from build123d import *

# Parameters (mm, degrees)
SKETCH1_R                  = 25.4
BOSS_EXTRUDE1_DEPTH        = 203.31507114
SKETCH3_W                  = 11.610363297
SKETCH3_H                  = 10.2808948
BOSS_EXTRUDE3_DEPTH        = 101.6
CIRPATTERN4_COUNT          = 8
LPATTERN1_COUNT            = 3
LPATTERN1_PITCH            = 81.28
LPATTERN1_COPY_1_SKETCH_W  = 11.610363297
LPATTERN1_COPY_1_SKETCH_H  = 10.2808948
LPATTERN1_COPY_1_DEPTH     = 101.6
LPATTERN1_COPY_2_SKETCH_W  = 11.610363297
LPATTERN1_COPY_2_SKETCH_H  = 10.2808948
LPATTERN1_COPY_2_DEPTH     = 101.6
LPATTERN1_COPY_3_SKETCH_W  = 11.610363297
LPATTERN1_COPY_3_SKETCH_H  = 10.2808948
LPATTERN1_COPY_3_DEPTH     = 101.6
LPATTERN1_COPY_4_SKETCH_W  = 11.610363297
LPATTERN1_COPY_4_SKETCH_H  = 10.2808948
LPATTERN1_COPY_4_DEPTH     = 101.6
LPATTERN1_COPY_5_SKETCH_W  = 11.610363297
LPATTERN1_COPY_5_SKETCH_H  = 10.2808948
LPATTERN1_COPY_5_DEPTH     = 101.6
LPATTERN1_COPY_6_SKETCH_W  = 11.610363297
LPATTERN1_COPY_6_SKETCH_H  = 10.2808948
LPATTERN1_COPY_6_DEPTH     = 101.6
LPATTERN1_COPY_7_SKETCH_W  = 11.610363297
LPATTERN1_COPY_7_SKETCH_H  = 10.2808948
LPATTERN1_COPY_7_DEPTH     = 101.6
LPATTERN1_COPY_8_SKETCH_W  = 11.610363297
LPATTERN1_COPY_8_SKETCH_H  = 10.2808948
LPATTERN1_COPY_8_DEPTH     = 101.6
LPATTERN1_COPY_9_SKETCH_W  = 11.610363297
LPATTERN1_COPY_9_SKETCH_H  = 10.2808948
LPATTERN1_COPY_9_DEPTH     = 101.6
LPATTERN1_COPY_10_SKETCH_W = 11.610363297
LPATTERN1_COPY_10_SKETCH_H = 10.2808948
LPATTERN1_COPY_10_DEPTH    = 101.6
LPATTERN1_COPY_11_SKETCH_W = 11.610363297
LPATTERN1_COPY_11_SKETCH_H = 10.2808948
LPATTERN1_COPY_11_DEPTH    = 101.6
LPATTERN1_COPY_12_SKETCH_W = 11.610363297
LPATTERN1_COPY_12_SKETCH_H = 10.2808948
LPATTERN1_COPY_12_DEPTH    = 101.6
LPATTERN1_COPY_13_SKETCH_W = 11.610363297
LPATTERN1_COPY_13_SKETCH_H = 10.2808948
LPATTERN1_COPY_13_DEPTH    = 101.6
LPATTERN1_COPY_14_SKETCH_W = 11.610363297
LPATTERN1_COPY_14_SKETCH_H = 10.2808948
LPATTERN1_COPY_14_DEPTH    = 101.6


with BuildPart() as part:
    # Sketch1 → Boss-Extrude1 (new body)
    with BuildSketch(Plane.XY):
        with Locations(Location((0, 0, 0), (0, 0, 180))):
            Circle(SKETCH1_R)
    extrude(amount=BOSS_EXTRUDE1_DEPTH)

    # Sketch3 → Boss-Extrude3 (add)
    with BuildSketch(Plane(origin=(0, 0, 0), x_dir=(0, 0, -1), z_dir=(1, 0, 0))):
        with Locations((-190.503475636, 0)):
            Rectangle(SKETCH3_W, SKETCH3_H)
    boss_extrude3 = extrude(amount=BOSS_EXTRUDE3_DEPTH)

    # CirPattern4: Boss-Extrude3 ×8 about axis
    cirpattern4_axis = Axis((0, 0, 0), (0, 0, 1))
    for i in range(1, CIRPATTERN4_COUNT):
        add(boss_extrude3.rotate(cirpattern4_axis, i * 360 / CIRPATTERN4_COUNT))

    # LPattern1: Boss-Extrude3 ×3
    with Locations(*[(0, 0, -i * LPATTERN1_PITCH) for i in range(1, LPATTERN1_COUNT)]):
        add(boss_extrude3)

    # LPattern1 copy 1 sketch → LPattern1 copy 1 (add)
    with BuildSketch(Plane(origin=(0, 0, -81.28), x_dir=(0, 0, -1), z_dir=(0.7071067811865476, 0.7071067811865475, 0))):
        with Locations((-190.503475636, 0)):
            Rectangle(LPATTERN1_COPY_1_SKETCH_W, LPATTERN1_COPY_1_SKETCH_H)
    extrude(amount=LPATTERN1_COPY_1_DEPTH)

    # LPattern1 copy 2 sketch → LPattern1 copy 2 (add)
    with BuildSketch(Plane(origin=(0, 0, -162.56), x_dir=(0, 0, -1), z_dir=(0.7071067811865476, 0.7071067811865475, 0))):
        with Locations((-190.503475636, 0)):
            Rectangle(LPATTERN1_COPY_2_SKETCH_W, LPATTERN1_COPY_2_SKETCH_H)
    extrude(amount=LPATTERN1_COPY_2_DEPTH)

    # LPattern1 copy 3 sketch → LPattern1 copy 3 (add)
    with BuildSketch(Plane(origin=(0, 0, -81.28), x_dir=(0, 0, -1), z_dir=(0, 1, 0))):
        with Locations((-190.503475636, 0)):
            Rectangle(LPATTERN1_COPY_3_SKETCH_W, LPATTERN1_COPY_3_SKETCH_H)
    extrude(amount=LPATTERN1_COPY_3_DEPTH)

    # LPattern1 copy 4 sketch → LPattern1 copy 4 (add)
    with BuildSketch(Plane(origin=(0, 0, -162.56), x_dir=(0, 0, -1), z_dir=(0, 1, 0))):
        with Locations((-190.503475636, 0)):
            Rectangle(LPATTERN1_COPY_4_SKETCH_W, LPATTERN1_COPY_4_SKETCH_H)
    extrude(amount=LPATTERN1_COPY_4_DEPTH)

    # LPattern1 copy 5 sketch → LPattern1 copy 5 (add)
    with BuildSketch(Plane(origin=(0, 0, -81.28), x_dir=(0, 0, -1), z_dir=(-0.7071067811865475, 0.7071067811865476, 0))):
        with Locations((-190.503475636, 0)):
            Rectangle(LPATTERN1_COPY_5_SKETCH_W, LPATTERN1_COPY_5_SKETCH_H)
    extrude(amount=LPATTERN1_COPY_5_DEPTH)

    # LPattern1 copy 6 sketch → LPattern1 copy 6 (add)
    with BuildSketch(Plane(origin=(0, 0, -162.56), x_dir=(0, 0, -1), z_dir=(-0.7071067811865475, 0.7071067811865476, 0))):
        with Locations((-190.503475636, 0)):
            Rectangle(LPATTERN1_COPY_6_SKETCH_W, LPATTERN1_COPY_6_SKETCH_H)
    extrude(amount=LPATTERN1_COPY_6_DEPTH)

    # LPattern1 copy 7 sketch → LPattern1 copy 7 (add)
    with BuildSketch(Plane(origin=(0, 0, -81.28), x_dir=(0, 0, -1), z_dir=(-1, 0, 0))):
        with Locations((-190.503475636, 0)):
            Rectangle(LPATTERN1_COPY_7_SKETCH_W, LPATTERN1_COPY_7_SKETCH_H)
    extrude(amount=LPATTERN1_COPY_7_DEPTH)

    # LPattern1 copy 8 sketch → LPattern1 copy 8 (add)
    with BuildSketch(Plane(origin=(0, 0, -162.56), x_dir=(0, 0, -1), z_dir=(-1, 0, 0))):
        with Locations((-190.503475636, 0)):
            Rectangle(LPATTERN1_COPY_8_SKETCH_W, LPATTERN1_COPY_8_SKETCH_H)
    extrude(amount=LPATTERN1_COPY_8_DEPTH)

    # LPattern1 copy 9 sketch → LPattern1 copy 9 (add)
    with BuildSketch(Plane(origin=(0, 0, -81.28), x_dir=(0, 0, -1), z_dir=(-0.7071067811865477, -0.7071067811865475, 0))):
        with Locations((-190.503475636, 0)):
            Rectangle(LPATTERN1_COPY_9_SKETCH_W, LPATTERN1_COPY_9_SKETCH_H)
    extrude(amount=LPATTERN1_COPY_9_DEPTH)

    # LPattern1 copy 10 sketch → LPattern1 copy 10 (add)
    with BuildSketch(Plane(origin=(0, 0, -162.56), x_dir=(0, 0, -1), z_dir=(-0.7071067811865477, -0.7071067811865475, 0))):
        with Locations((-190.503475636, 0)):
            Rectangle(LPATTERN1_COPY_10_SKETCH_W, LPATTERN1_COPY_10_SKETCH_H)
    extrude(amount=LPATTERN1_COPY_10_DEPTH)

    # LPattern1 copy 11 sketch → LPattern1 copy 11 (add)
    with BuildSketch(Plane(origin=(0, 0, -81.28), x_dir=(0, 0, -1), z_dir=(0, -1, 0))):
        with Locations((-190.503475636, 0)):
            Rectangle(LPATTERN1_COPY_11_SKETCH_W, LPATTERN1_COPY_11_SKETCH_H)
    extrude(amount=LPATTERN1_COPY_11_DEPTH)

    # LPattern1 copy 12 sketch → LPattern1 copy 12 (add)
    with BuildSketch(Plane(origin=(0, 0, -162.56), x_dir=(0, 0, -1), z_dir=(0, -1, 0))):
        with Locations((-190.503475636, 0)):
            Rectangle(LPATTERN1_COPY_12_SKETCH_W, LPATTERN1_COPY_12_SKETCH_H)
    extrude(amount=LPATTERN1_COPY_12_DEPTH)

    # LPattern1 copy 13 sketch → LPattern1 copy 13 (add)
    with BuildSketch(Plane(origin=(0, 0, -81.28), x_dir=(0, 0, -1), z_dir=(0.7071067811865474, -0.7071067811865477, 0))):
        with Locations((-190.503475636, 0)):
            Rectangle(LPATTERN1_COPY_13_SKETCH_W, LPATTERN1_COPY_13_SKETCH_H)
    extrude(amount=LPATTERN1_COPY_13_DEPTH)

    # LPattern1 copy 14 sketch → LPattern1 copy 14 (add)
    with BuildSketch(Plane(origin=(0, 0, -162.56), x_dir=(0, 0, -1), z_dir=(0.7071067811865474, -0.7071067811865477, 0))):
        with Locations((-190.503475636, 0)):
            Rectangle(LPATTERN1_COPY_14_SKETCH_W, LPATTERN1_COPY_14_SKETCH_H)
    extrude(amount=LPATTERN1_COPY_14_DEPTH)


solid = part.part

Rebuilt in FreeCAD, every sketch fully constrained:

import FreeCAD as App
import Part
import Sketcher
from FreeCAD import Vector
Q = App.Units.Quantity


def add_polygon(sketch, points):
    """Adds a closed chain of lines whose ends are joined by coincident constraints."""
    first, n = sketch.GeometryCount, len(points)
    for a, b in zip(points, points[1:] + points[:1]):
        sketch.addGeometry(Part.LineSegment(App.Vector(*a, 0), App.Vector(*b, 0)), False)
    for i in range(n):
        sketch.addConstraint(Sketcher.Constraint("Coincident", first + i, 2, first + (i + 1) % n, 1))

doc = App.newDocument("Part")
body = doc.addObject("PartDesign::Body", "Body")

# Sketch on XY plane
sketch1 = doc.addObject("Sketcher::SketchObject", "Sketch")
body.addObject(sketch1)
sketch1.AttachmentSupport = (doc.XY_Plane, [""])
sketch1.MapMode = "FlatFace"
sketch1.addGeometry(Part.Circle(Vector(0, 0, 0), Vector(0, 0, 1), 25.4), False)
sketch1.addConstraint([
    Sketcher.Constraint("Coincident", 0, 3, -1, 1),
    Sketcher.Constraint("Diameter", 0, Q("2 in")),
])
pad1 = doc.addObject("PartDesign::Pad", "Pad")
body.addObject(pad1)
pad1.Profile = sketch1
pad1.Length = 203.315071

# Sketch on YZ plane
sketch2 = doc.addObject("Sketcher::SketchObject", "Sketch001")
body.addObject(sketch2)
sketch2.AttachmentSupport = (doc.YZ_Plane, [""])
sketch2.MapMode = "FlatFace"
add_polygon(sketch2, [(5.140447, 196.308657), (-5.140447, 196.308657), (-5.140447, 184.698294), (5.140447, 184.698294)])  # lines 0-3
sketch2.addConstraint([
    Sketcher.Constraint("Horizontal", 0),
    Sketcher.Constraint("Vertical", 1),
    Sketcher.Constraint("Horizontal", 2),
    Sketcher.Constraint("Vertical", 3),
    Sketcher.Constraint("DistanceX", 0, 2, 0, 1, 10.280895),
    Sketcher.Constraint("DistanceY", 1, 2, 1, 1, 11.610363),
    Sketcher.Constraint("DistanceX", 0, 2, -1, 1, 5.140447),
    Sketcher.Constraint("DistanceY", -1, 1, 0, 2, 196.308657),
])
pad2 = doc.addObject("PartDesign::Pad", "Pad001")
body.addObject(pad2)
pad2.Profile = sketch2
pad2.Length = Q("4 in")
doc.recompute()

polarpattern = doc.addObject("PartDesign::PolarPattern", "PolarPattern")
body.addObject(polarpattern)
polarpattern.Originals = [pad2]
polarpattern.Axis = (doc.Z_Axis, [""])
polarpattern.Angle = 360
polarpattern.Occurrences = 8
body.Tip = polarpattern
doc.recompute()

linearpattern = doc.addObject("PartDesign::LinearPattern", "LinearPattern")
body.addObject(linearpattern)
linearpattern.Originals = [pad2]
linearpattern.Direction = (doc.Z_Axis, [""])
linearpattern.Mode = "offset"
linearpattern.Offset = Q("3.2 in")
linearpattern.Occurrences = 3
linearpattern.Reversed = True
body.Tip = linearpattern

# Sketch on an angled plane
sketch3 = doc.addObject("Sketcher::SketchObject", "Sketch002")
body.addObject(sketch3)
sketch3.Placement = App.Placement(Vector(0, 0, -81.28), App.Rotation(Vector(0, 0, -1), Vector(-0.707106781, 0.707106781, 0), Vector(0.707106781, 0.707106781, 0), "ZXY"))
add_polygon(sketch3, [(-196.308657, 5.140447), (-196.308657, -5.140447), (-184.698294, -5.140447), (-184.698294, 5.140447)])  # lines 0-3
sketch3.addConstraint([
    Sketcher.Constraint("Vertical", 0),
    Sketcher.Constraint("Horizontal", 1),
    Sketcher.Constraint("Vertical", 2),
    Sketcher.Constraint("Horizontal", 3),
    Sketcher.Constraint("DistanceX", 1, 1, 1, 2, 11.610363),
    Sketcher.Constraint("DistanceY", 0, 2, 0, 1, 10.280895),
    Sketcher.Constraint("DistanceX", 0, 2, -1, 1, 196.308657),
    Sketcher.Constraint("DistanceY", 0, 2, -1, 1, 5.140447),
])
pad3 = doc.addObject("PartDesign::Pad", "Pad002")
body.addObject(pad3)
pad3.Profile = sketch3
pad3.Length = Q("4 in")

# Sketch on an angled plane
sketch4 = doc.addObject("Sketcher::SketchObject", "Sketch003")
body.addObject(sketch4)
sketch4.Placement = App.Placement(Vector(0, 0, -162.56), App.Rotation(Vector(0, 0, -1), Vector(-0.707106781, 0.707106781, 0), Vector(0.707106781, 0.707106781, 0), "ZXY"))
add_polygon(sketch4, [(-196.308657, 5.140447), (-196.308657, -5.140447), (-184.698294, -5.140447), (-184.698294, 5.140447)])  # lines 0-3
sketch4.addConstraint([
    Sketcher.Constraint("Vertical", 0),
    Sketcher.Constraint("Horizontal", 1),
    Sketcher.Constraint("Vertical", 2),
    Sketcher.Constraint("Horizontal", 3),
    Sketcher.Constraint("DistanceX", 1, 1, 1, 2, 11.610363),
    Sketcher.Constraint("DistanceY", 0, 2, 0, 1, 10.280895),
    Sketcher.Constraint("DistanceX", 0, 2, -1, 1, 196.308657),
    Sketcher.Constraint("DistanceY", 0, 2, -1, 1, 5.140447),
])
pad4 = doc.addObject("PartDesign::Pad", "Pad003")
body.addObject(pad4)
pad4.Profile = sketch4
pad4.Length = Q("4 in")

# Sketch on XZ plane
sketch5 = doc.addObject("Sketcher::SketchObject", "Sketch004")
body.addObject(sketch5)
sketch5.AttachmentSupport = (doc.XZ_Plane, [""])
sketch5.MapMode = "FlatFace"
add_polygon(sketch5, [(-5.140447, 115.028657), (5.140447, 115.028657), (5.140447, 103.418294), (-5.140447, 103.418294)])  # lines 0-3
sketch5.addConstraint([
    Sketcher.Constraint("Horizontal", 0),
    Sketcher.Constraint("Vertical", 1),
    Sketcher.Constraint("Horizontal", 2),
    Sketcher.Constraint("Vertical", 3),
    Sketcher.Constraint("DistanceX", 0, 1, 0, 2, 10.280895),
    Sketcher.Constraint("DistanceY", 1, 2, 1, 1, 11.610363),
    Sketcher.Constraint("DistanceX", -1, 1, 0, 2, 5.140447),
    Sketcher.Constraint("DistanceY", -1, 1, 0, 2, 115.028657),
])
pad5 = doc.addObject("PartDesign::Pad", "Pad004")
body.addObject(pad5)
pad5.Profile = sketch5
pad5.Length = Q("4 in")
pad5.Reversed = True

# Sketch on XZ plane
sketch6 = doc.addObject("Sketcher::SketchObject", "Sketch005")
body.addObject(sketch6)
sketch6.AttachmentSupport = (doc.XZ_Plane, [""])
sketch6.MapMode = "FlatFace"
add_polygon(sketch6, [(-5.140447, 33.748657), (5.140447, 33.748657), (5.140447, 22.138294), (-5.140447, 22.138294)])  # lines 0-3
sketch6.addConstraint([
    Sketcher.Constraint("Horizontal", 0),
    Sketcher.Constraint("Vertical", 1),
    Sketcher.Constraint("Horizontal", 2),
    Sketcher.Constraint("Vertical", 3),
    Sketcher.Constraint("DistanceX", 0, 1, 0, 2, 10.280895),
    Sketcher.Constraint("DistanceY", 1, 2, 1, 1, 11.610363),
    Sketcher.Constraint("DistanceX", -1, 1, 0, 2, 5.140447),
    Sketcher.Constraint("DistanceY", -1, 1, 0, 2, 33.748657),
])
pad6 = doc.addObject("PartDesign::Pad", "Pad005")
body.addObject(pad6)
pad6.Profile = sketch6
pad6.Length = Q("4 in")
pad6.Reversed = True

# Sketch on an angled plane
sketch7 = doc.addObject("Sketcher::SketchObject", "Sketch006")
body.addObject(sketch7)
sketch7.Placement = App.Placement(Vector(0, 0, -81.28), App.Rotation(Vector(0, 0, -1), Vector(-0.707106781, -0.707106781, 0), Vector(-0.707106781, 0.707106781, 0), "ZXY"))
add_polygon(sketch7, [(-196.308657, 5.140447), (-196.308657, -5.140447), (-184.698294, -5.140447), (-184.698294, 5.140447)])  # lines 0-3
sketch7.addConstraint([
    Sketcher.Constraint("Vertical", 0),
    Sketcher.Constraint("Horizontal", 1),
    Sketcher.Constraint("Vertical", 2),
    Sketcher.Constraint("Horizontal", 3),
    Sketcher.Constraint("DistanceX", 1, 1, 1, 2, 11.610363),
    Sketcher.Constraint("DistanceY", 0, 2, 0, 1, 10.280895),
    Sketcher.Constraint("DistanceX", 0, 2, -1, 1, 196.308657),
    Sketcher.Constraint("DistanceY", 0, 2, -1, 1, 5.140447),
])
pad7 = doc.addObject("PartDesign::Pad", "Pad006")
body.addObject(pad7)
pad7.Profile = sketch7
pad7.Length = Q("4 in")

# Sketch on an angled plane
sketch8 = doc.addObject("Sketcher::SketchObject", "Sketch007")
body.addObject(sketch8)
sketch8.Placement = App.Placement(Vector(0, 0, -162.56), App.Rotation(Vector(0, 0, -1), Vector(-0.707106781, -0.707106781, 0), Vector(-0.707106781, 0.707106781, 0), "ZXY"))
add_polygon(sketch8, [(-196.308657, 5.140447), (-196.308657, -5.140447), (-184.698294, -5.140447), (-184.698294, 5.140447)])  # lines 0-3
sketch8.addConstraint([
    Sketcher.Constraint("Vertical", 0),
    Sketcher.Constraint("Horizontal", 1),
    Sketcher.Constraint("Vertical", 2),
    Sketcher.Constraint("Horizontal", 3),
    Sketcher.Constraint("DistanceX", 1, 1, 1, 2, 11.610363),
    Sketcher.Constraint("DistanceY", 0, 2, 0, 1, 10.280895),
    Sketcher.Constraint("DistanceX", 0, 2, -1, 1, 196.308657),
    Sketcher.Constraint("DistanceY", 0, 2, -1, 1, 5.140447),
])
pad8 = doc.addObject("PartDesign::Pad", "Pad007")
body.addObject(pad8)
pad8.Profile = sketch8
pad8.Length = Q("4 in")

# Sketch on YZ plane
sketch9 = doc.addObject("Sketcher::SketchObject", "Sketch008")
body.addObject(sketch9)
sketch9.AttachmentSupport = (doc.YZ_Plane, [""])
sketch9.MapMode = "FlatFace"
add_polygon(sketch9, [(-5.140447, 115.028657), (5.140447, 115.028657), (5.140447, 103.418294), (-5.140447, 103.418294)])  # lines 0-3
sketch9.addConstraint([
    Sketcher.Constraint("Horizontal", 0),
    Sketcher.Constraint("Vertical", 1),
    Sketcher.Constraint("Horizontal", 2),
    Sketcher.Constraint("Vertical", 3),
    Sketcher.Constraint("DistanceX", 0, 1, 0, 2, 10.280895),
    Sketcher.Constraint("DistanceY", 1, 2, 1, 1, 11.610363),
    Sketcher.Constraint("DistanceX", -1, 1, 0, 2, 5.140447),
    Sketcher.Constraint("DistanceY", -1, 1, 0, 2, 115.028657),
])
pad9 = doc.addObject("PartDesign::Pad", "Pad008")
body.addObject(pad9)
pad9.Profile = sketch9
pad9.Length = Q("4 in")
pad9.Reversed = True

# Sketch on YZ plane
sketch10 = doc.addObject("Sketcher::SketchObject", "Sketch009")
body.addObject(sketch10)
sketch10.AttachmentSupport = (doc.YZ_Plane, [""])
sketch10.MapMode = "FlatFace"
add_polygon(sketch10, [(-5.140447, 33.748657), (5.140447, 33.748657), (5.140447, 22.138294), (-5.140447, 22.138294)])  # lines 0-3
sketch10.addConstraint([
    Sketcher.Constraint("Horizontal", 0),
    Sketcher.Constraint("Vertical", 1),
    Sketcher.Constraint("Horizontal", 2),
    Sketcher.Constraint("Vertical", 3),
    Sketcher.Constraint("DistanceX", 0, 1, 0, 2, 10.280895),
    Sketcher.Constraint("DistanceY", 1, 2, 1, 1, 11.610363),
    Sketcher.Constraint("DistanceX", -1, 1, 0, 2, 5.140447),
    Sketcher.Constraint("DistanceY", -1, 1, 0, 2, 33.748657),
])
pad10 = doc.addObject("PartDesign::Pad", "Pad009")
body.addObject(pad10)
pad10.Profile = sketch10
pad10.Length = Q("4 in")
pad10.Reversed = True

# Sketch on an angled plane
sketch11 = doc.addObject("Sketcher::SketchObject", "Sketch010")
body.addObject(sketch11)
sketch11.Placement = App.Placement(Vector(0, 0, -81.28), App.Rotation(Vector(0, 0, -1), Vector(0.707106781, -0.707106781, 0), Vector(-0.707106781, -0.707106781, 0), "ZXY"))
add_polygon(sketch11, [(-196.308657, 5.140447), (-196.308657, -5.140447), (-184.698294, -5.140447), (-184.698294, 5.140447)])  # lines 0-3
sketch11.addConstraint([
    Sketcher.Constraint("Vertical", 0),
    Sketcher.Constraint("Horizontal", 1),
    Sketcher.Constraint("Vertical", 2),
    Sketcher.Constraint("Horizontal", 3),
    Sketcher.Constraint("DistanceX", 1, 1, 1, 2, 11.610363),
    Sketcher.Constraint("DistanceY", 0, 2, 0, 1, 10.280895),
    Sketcher.Constraint("DistanceX", 0, 2, -1, 1, 196.308657),
    Sketcher.Constraint("DistanceY", 0, 2, -1, 1, 5.140447),
])
pad11 = doc.addObject("PartDesign::Pad", "Pad010")
body.addObject(pad11)
pad11.Profile = sketch11
pad11.Length = Q("4 in")

# Sketch on an angled plane
sketch12 = doc.addObject("Sketcher::SketchObject", "Sketch011")
body.addObject(sketch12)
sketch12.Placement = App.Placement(Vector(0, 0, -162.56), App.Rotation(Vector(0, 0, -1), Vector(0.707106781, -0.707106781, 0), Vector(-0.707106781, -0.707106781, 0), "ZXY"))
add_polygon(sketch12, [(-196.308657, 5.140447), (-196.308657, -5.140447), (-184.698294, -5.140447), (-184.698294, 5.140447)])  # lines 0-3
sketch12.addConstraint([
    Sketcher.Constraint("Vertical", 0),
    Sketcher.Constraint("Horizontal", 1),
    Sketcher.Constraint("Vertical", 2),
    Sketcher.Constraint("Horizontal", 3),
    Sketcher.Constraint("DistanceX", 1, 1, 1, 2, 11.610363),
    Sketcher.Constraint("DistanceY", 0, 2, 0, 1, 10.280895),
    Sketcher.Constraint("DistanceX", 0, 2, -1, 1, 196.308657),
    Sketcher.Constraint("DistanceY", 0, 2, -1, 1, 5.140447),
])
pad12 = doc.addObject("PartDesign::Pad", "Pad011")
body.addObject(pad12)
pad12.Profile = sketch12
pad12.Length = Q("4 in")

# Sketch on XZ plane
sketch13 = doc.addObject("Sketcher::SketchObject", "Sketch012")
body.addObject(sketch13)
sketch13.AttachmentSupport = (doc.XZ_Plane, [""])
sketch13.MapMode = "FlatFace"
add_polygon(sketch13, [(5.140447, 115.028657), (-5.140447, 115.028657), (-5.140447, 103.418294), (5.140447, 103.418294)])  # lines 0-3
sketch13.addConstraint([
    Sketcher.Constraint("Horizontal", 0),
    Sketcher.Constraint("Vertical", 1),
    Sketcher.Constraint("Horizontal", 2),
    Sketcher.Constraint("Vertical", 3),
    Sketcher.Constraint("DistanceX", 0, 2, 0, 1, 10.280895),
    Sketcher.Constraint("DistanceY", 1, 2, 1, 1, 11.610363),
    Sketcher.Constraint("DistanceX", 0, 2, -1, 1, 5.140447),
    Sketcher.Constraint("DistanceY", -1, 1, 0, 2, 115.028657),
])
pad13 = doc.addObject("PartDesign::Pad", "Pad012")
body.addObject(pad13)
pad13.Profile = sketch13
pad13.Length = Q("4 in")

# Sketch on XZ plane
sketch14 = doc.addObject("Sketcher::SketchObject", "Sketch013")
body.addObject(sketch14)
sketch14.AttachmentSupport = (doc.XZ_Plane, [""])
sketch14.MapMode = "FlatFace"
add_polygon(sketch14, [(5.140447, 33.748657), (-5.140447, 33.748657), (-5.140447, 22.138294), (5.140447, 22.138294)])  # lines 0-3
sketch14.addConstraint([
    Sketcher.Constraint("Horizontal", 0),
    Sketcher.Constraint("Vertical", 1),
    Sketcher.Constraint("Horizontal", 2),
    Sketcher.Constraint("Vertical", 3),
    Sketcher.Constraint("DistanceX", 0, 2, 0, 1, 10.280895),
    Sketcher.Constraint("DistanceY", 1, 2, 1, 1, 11.610363),
    Sketcher.Constraint("DistanceX", 0, 2, -1, 1, 5.140447),
    Sketcher.Constraint("DistanceY", -1, 1, 0, 2, 33.748657),
])
pad14 = doc.addObject("PartDesign::Pad", "Pad013")
body.addObject(pad14)
pad14.Profile = sketch14
pad14.Length = Q("4 in")

# Sketch on an angled plane
sketch15 = doc.addObject("Sketcher::SketchObject", "Sketch014")
body.addObject(sketch15)
sketch15.Placement = App.Placement(Vector(0, 0, -81.28), App.Rotation(Vector(0, 0, -1), Vector(0.707106781, 0.707106781, 0), Vector(0.707106781, -0.707106781, 0), "ZXY"))
add_polygon(sketch15, [(-196.308657, 5.140447), (-196.308657, -5.140447), (-184.698294, -5.140447), (-184.698294, 5.140447)])  # lines 0-3
sketch15.addConstraint([
    Sketcher.Constraint("Vertical", 0),
    Sketcher.Constraint("Horizontal", 1),
    Sketcher.Constraint("Vertical", 2),
    Sketcher.Constraint("Horizontal", 3),
    Sketcher.Constraint("DistanceX", 1, 1, 1, 2, 11.610363),
    Sketcher.Constraint("DistanceY", 0, 2, 0, 1, 10.280895),
    Sketcher.Constraint("DistanceX", 0, 2, -1, 1, 196.308657),
    Sketcher.Constraint("DistanceY", 0, 2, -1, 1, 5.140447),
])
pad15 = doc.addObject("PartDesign::Pad", "Pad014")
body.addObject(pad15)
pad15.Profile = sketch15
pad15.Length = Q("4 in")

# Sketch on an angled plane
sketch16 = doc.addObject("Sketcher::SketchObject", "Sketch015")
body.addObject(sketch16)
sketch16.Placement = App.Placement(Vector(0, 0, -162.56), App.Rotation(Vector(0, 0, -1), Vector(0.707106781, 0.707106781, 0), Vector(0.707106781, -0.707106781, 0), "ZXY"))
add_polygon(sketch16, [(-196.308657, 5.140447), (-196.308657, -5.140447), (-184.698294, -5.140447), (-184.698294, 5.140447)])  # lines 0-3
sketch16.addConstraint([
    Sketcher.Constraint("Vertical", 0),
    Sketcher.Constraint("Horizontal", 1),
    Sketcher.Constraint("Vertical", 2),
    Sketcher.Constraint("Horizontal", 3),
    Sketcher.Constraint("DistanceX", 1, 1, 1, 2, 11.610363),
    Sketcher.Constraint("DistanceY", 0, 2, 0, 1, 10.280895),
    Sketcher.Constraint("DistanceX", 0, 2, -1, 1, 196.308657),
    Sketcher.Constraint("DistanceY", 0, 2, -1, 1, 5.140447),
])
pad16 = doc.addObject("PartDesign::Pad", "Pad015")
body.addObject(pad16)
pad16.Profile = sketch16
pad16.Length = Q("4 in")

doc.recompute()
